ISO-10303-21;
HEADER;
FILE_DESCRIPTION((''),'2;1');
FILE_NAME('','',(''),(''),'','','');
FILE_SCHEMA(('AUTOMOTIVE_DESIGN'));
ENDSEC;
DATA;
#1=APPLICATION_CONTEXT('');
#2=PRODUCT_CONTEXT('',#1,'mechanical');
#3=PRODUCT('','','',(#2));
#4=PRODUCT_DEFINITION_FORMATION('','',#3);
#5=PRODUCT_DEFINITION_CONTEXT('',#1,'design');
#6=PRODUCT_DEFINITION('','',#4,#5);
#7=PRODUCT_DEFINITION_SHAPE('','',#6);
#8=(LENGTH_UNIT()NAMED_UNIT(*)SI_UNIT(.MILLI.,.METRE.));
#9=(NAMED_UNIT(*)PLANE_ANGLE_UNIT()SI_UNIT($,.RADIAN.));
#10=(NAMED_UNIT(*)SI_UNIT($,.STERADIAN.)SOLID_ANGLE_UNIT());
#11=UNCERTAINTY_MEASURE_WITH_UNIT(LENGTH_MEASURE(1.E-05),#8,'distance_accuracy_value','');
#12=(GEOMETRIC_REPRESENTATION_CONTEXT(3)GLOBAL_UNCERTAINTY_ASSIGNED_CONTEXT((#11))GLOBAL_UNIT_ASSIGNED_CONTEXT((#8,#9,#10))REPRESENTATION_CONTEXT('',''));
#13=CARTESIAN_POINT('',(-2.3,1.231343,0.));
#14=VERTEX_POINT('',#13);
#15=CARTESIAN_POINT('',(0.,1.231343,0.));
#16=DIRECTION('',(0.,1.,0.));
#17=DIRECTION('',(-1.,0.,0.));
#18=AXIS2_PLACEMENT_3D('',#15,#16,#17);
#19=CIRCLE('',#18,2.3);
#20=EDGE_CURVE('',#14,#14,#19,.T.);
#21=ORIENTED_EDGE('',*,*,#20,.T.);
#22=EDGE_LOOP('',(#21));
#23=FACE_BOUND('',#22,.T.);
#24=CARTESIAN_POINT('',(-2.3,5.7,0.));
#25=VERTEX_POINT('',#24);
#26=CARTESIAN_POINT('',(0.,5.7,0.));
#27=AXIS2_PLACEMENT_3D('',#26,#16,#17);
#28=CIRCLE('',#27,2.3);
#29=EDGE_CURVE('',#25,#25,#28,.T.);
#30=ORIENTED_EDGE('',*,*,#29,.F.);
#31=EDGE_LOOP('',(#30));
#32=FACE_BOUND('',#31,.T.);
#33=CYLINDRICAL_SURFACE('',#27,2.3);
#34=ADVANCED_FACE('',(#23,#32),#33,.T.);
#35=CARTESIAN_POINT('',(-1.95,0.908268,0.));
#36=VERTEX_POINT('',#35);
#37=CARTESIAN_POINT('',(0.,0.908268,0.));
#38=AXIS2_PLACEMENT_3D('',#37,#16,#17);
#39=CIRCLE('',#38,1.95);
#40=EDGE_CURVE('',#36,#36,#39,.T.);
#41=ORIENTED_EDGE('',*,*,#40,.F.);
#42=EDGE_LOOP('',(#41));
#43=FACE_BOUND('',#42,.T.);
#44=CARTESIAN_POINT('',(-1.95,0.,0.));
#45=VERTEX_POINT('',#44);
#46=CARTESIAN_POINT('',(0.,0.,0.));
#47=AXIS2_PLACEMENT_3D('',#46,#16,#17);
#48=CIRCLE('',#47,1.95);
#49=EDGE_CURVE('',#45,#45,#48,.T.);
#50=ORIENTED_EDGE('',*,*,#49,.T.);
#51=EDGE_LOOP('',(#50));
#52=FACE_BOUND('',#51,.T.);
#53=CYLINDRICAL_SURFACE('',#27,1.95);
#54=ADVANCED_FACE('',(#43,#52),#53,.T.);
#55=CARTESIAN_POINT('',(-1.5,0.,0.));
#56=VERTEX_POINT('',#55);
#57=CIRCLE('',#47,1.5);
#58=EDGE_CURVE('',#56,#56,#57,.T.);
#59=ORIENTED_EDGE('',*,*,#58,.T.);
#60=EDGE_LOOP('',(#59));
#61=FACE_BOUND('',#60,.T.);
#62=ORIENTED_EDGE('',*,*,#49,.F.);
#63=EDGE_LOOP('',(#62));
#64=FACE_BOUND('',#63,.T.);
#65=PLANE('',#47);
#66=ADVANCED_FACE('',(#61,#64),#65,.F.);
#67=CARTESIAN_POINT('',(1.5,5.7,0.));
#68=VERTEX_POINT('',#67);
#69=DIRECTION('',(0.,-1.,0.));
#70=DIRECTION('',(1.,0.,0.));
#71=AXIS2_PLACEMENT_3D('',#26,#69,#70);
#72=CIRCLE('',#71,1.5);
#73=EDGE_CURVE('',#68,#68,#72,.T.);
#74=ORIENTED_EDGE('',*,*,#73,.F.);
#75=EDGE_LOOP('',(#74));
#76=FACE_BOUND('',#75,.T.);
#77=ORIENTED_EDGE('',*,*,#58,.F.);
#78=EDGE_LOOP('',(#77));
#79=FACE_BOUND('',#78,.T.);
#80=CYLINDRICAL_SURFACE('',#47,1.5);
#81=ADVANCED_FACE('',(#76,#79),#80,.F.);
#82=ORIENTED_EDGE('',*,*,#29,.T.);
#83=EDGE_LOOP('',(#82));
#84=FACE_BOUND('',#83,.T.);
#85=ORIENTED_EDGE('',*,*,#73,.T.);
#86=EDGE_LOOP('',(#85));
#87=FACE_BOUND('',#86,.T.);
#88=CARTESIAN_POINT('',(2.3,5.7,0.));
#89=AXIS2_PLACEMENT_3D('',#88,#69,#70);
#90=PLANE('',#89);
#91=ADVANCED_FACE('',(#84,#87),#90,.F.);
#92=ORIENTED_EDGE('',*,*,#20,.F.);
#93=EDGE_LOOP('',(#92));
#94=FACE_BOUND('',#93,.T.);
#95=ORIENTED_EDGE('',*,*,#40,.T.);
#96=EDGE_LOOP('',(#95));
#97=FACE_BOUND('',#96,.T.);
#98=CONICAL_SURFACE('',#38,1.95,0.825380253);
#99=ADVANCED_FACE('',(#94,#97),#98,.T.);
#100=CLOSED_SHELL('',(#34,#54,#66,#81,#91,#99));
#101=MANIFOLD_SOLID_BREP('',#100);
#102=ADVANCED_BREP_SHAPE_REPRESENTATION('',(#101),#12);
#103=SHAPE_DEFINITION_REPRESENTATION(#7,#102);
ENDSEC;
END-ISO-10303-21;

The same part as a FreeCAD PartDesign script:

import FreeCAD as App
import Part
import Sketcher

V = App.Vector
Q = App.Units.Quantity

doc = App.newDocument("Part")
body = doc.addObject("PartDesign::Body", "Body")

# Sketch on XY plane
sketch1 = body.newObject("Sketcher::SketchObject", "Sketch")
sketch1.AttachmentSupport = (doc.getObject("XY_Plane"), [""])
sketch1.MapMode = "FlatFace"
sketch1.addGeometry([
    Part.LineSegment(V(0, 0, 0), V(1.95, 0, 0)),  # 0
    Part.LineSegment(V(1.95, 0, 0), V(1.95, 0.908268, 0)),  # 1
    Part.LineSegment(V(1.95, 0.908268, 0), V(2.3, 1.231343, 0)),  # 2
    Part.LineSegment(V(2.3, 1.231343, 0), V(2.3, 5.7, 0)),  # 3
    Part.LineSegment(V(2.3, 5.7, 0), V(0, 5.7, 0)),  # 4
    Part.LineSegment(V(0, 5.7, 0), V(0, 0, 0)),  # 5
], False)
sketch1.addConstraint([
    Sketcher.Constraint("Coincident", 0, 2, 1, 1),
    Sketcher.Constraint("Coincident", 1, 2, 2, 1),
    Sketcher.Constraint("Coincident", 2, 2, 3, 1),
    Sketcher.Constraint("Coincident", 3, 2, 4, 1),
    Sketcher.Constraint("Coincident", 4, 2, 5, 1),
    Sketcher.Constraint("Coincident", 5, 2, 0, 1),
    Sketcher.Constraint("Horizontal", 0),
    Sketcher.Constraint("Vertical", 1),
    Sketcher.Constraint("Vertical", 3),
    Sketcher.Constraint("Horizontal", 4),
    Sketcher.Constraint("Vertical", 5),
    Sketcher.Constraint("Coincident", 5, 2, -1, 1),
    Sketcher.Constraint("DistanceX", 4, 2, 4, 1, Q("2.3 mm")),
    Sketcher.Constraint("DistanceY", 5, 2, 5, 1, Q("5.7 mm")),
    Sketcher.Constraint("DistanceX", 0, 1, 0, 2, Q("1.95 mm")),
    Sketcher.Constraint("DistanceY", 1, 1, 1, 2, Q("0.908268 mm")),
    Sketcher.Constraint("DistanceY", 3, 1, 3, 2, Q("4.468657 mm")),
])
revolution = body.newObject("PartDesign::Revolution", "Revolution")
revolution.Profile = sketch1
revolution.ReferenceAxis = (sketch1, ["V_Axis"])
revolution.Angle = 360

# Sketch on XZ plane
sketch2 = body.newObject("Sketcher::SketchObject", "Sketch001")
sketch2.AttachmentSupport = (doc.getObject("XZ_Plane"), [""])
sketch2.MapMode = "FlatFace"
sketch2.AttachmentOffset = App.Placement(V(0, 0, -5.7), App.Rotation())
sketch2.addGeometry(Part.Circle(V(0, 0, 0), V(0, 0, 1), 1.5), False)
sketch2.addConstraint([
    Sketcher.Constraint("Coincident", 0, 3, -1, 1),
    Sketcher.Constraint("Diameter", 0, Q("3 mm")),
])
pocket1 = body.newObject("PartDesign::Pocket", "Pocket")
pocket1.Profile = sketch2
pocket1.Type = "ThroughAll"
pocket1.Midplane = True

doc.recompute()
